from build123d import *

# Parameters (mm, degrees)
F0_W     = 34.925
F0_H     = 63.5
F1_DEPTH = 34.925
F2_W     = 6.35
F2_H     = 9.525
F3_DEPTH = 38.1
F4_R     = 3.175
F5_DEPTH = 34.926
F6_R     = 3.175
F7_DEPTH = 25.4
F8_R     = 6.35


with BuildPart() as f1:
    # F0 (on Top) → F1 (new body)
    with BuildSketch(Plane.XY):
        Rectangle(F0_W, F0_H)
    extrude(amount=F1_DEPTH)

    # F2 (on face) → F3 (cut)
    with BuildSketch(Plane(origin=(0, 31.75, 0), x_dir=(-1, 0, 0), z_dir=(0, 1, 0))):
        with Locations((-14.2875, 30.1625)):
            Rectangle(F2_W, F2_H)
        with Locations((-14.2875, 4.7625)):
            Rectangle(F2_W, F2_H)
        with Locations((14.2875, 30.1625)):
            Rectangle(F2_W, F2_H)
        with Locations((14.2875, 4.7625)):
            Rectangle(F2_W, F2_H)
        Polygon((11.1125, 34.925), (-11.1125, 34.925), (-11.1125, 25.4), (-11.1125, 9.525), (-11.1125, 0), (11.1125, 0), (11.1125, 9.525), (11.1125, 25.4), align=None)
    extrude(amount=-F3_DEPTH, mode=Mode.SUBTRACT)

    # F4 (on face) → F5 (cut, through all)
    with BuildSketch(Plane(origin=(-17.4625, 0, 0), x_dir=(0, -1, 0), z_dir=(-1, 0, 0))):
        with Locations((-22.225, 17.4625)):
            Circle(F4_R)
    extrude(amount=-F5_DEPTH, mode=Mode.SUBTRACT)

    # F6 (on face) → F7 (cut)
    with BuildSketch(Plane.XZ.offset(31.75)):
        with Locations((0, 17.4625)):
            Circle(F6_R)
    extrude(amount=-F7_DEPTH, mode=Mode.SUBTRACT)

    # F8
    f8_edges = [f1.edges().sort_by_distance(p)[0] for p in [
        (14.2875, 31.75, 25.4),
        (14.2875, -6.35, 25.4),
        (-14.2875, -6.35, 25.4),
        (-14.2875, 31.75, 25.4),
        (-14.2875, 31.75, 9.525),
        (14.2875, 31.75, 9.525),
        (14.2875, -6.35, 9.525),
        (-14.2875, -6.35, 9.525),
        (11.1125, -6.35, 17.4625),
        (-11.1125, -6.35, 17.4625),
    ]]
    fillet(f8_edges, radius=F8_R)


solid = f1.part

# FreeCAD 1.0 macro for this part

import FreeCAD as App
import Part
import Sketcher
from FreeCAD import Vector
Q = App.Units.Quantity


def edges_at(feature, points):
    """Names of the edges that pass closest to the given points."""
    edges = feature.Shape.Edges
    near = lambda p: min(range(len(edges)), key=lambda i: edges[i].distToShape(Part.Vertex(*p))[0])
    return sorted({f"Edge{near(p) + 1}" for p in points})


def add_polygon(sketch, points):
    """Adds a closed chain of lines whose ends are joined by coincident constraints."""
    first, n = sketch.GeometryCount, len(points)
    for a, b in zip(points, points[1:] + points[:1]):
        sketch.addGeometry(Part.LineSegment(App.Vector(*a, 0), App.Vector(*b, 0)), False)
    for i in range(n):
        sketch.addConstraint(Sketcher.Constraint("Coincident", first + i, 2, first + (i + 1) % n, 1))

doc = App.newDocument("Part")
params = doc.addObject("Spreadsheet::Sheet", "Params")
for row, (alias, value) in enumerate([
    ("sketch1_height", "2.5 in"),
    ("sketch1_width", "1.375 in"),
    ("pad1_length", "1.375 in"),
    ("sketch2_width", "0.25 in"),
    ("sketch2_width2", "1.375 in"),
    ("sketch2_height", "0.375 in"),
    ("pocket1_length", "1.5 in"),
    ("sketch3_diameter", "0.25 in"),
    ("sketch4_diameter", "0.25 in"),
    ("pocket3_length", "1 in"),
    ("fillet_radius", "0.25 in"),
], start=1):
    params.set(f"A{row}", alias)
    params.set(f"B{row}", "=" + value)
    params.setAlias(f"B{row}", alias)

body = doc.addObject("PartDesign::Body", "Body")

# Sketch on XY plane
sketch1 = body.newObject("Sketcher::SketchObject", "Sketch")
sketch1.AttachmentSupport = (doc.getObject("XY_Plane"), [""])
sketch1.MapMode = "FlatFace"
add_polygon(sketch1, [(-17, 32), (-17, -32), (17, -32), (17, 32)])  # lines 0-3
sketch1.addConstraint([
    Sketcher.Constraint("Vertical", 0),
    Sketcher.Constraint("Horizontal", 1),
    Sketcher.Constraint("Vertical", 2),
    Sketcher.Constraint("Horizontal", 3),
    Sketcher.Constraint("Symmetric", 0, 2, 2, 2, -1, 1),
    Sketcher.Constraint("DistanceY", 0, 2, 0, 1, Q("2.5 in")),
    Sketcher.Constraint("DistanceX", 1, 1, 1, 2, Q("1.375 in")),
])
sketch1.setExpression("Constraints[9]", "Params.sketch1_height")
sketch1.setExpression("Constraints[10]", "Params.sketch1_width")
pad1 = body.newObject("PartDesign::Pad", "Pad")
pad1.Profile = sketch1
pad1.setExpression("Length", "Params.pad1_length")

# Sketch on XZ plane
sketch2 = body.newObject("Sketcher::SketchObject", "Sketch001")
sketch2.AttachmentSupport = (doc.getObject("XZ_Plane"), [""])
sketch2.MapMode = "FlatFace"
sketch2.AttachmentOffset = App.Placement(Vector(0, 0, -1.25 * 25.4), App.Rotation())
add_polygon(sketch2, [(17, 35), (17, 25), (11, 25), (11, 10), (17, 10), (17, 0), (-17, 0), (-17, 10), (-11, 10), (-11, 25), (-17, 25), (-17, 35)])  # lines 0-11
sketch2.addConstraint([
    Sketcher.Constraint("Vertical", 0),
    Sketcher.Constraint("Horizontal", 1),
    Sketcher.Constraint("Vertical", 2),
    Sketcher.Constraint("Horizontal", 3),
    Sketcher.Constraint("Vertical", 4),
    Sketcher.Constraint("Horizontal", 5),
    Sketcher.Constraint("Vertical", 6),
    Sketcher.Constraint("Horizontal", 7),
    Sketcher.Constraint("Vertical", 8),
    Sketcher.Constraint("Horizontal", 9),
    Sketcher.Constraint("Vertical", 10),
    Sketcher.Constraint("Horizontal", 11),
    Sketcher.Constraint("Symmetric", 4, 2, 5, 2, -1, 1),
    Sketcher.Constraint("Symmetric", 2, 2, 7, 2, -2),
    Sketcher.Constraint("Symmetric", 0, 2, 9, 2, -2),
    Sketcher.Constraint("Vertical", 0, 2, 3, 2),
    Sketcher.Constraint("Equal", 0, 4),
    Sketcher.Constraint("DistanceY", -1, 1, 0, 2, Q("1 in")),
    Sketcher.Constraint("DistanceX", 1, 2, 1, 1, Q("0.25 in")),
    Sketcher.Constraint("DistanceX", 5, 2, 5, 1, Q("1.375 in")),
    Sketcher.Constraint("DistanceY", 0, 2, 0, 1, Q("0.375 in")),
])
sketch2.setExpression("Constraints[30]", "Params.sketch2_width")
sketch2.setExpression("Constraints[31]", "Params.sketch2_width2")
sketch2.setExpression("Constraints[32]", "Params.sketch2_height")
pocket1 = body.newObject("PartDesign::Pocket", "Pocket")
pocket1.Profile = sketch2
pocket1.setExpression("Length", "Params.pocket1_length")
pocket1.Reversed = True

# Sketch on YZ plane
sketch3 = body.newObject("Sketcher::SketchObject", "Sketch002")
sketch3.AttachmentSupport = (doc.getObject("YZ_Plane"), [""])
sketch3.MapMode = "FlatFace"
sketch3.AttachmentOffset = App.Placement(Vector(0, 0, -0.6875 * 25.4), App.Rotation())
sketch3.addGeometry(Part.Circle(Vector(22.2, 17.5, 0), Vector(0, 0, 1), 3.2), False)
sketch3.addConstraint([
    Sketcher.Constraint("Diameter", 0, Q("0.25 in")),
    Sketcher.Constraint("DistanceX", -1, 1, 0, 3, Q("0.875 in")),
    Sketcher.Constraint("DistanceY", -1, 1, 0, 3, Q("0.6875 in")),
])
sketch3.setExpression("Constraints[0]", "Params.sketch3_diameter")
pocket2 = body.newObject("PartDesign::Pocket", "Pocket001")
pocket2.Profile = sketch3
pocket2.Type = "ThroughAll"
pocket2.Reversed = True

# Sketch on XZ plane
sketch4 = body.newObject("Sketcher::SketchObject", "Sketch003")
sketch4.AttachmentSupport = (doc.getObject("XZ_Plane"), [""])
sketch4.MapMode = "FlatFace"
sketch4.AttachmentOffset = App.Placement(Vector(0, 0, 1.25 * 25.4), App.Rotation())
sketch4.addGeometry(Part.Circle(Vector(0, 17.5, 0), Vector(0, 0, 1), 3.2), False)
sketch4.addConstraint([
    Sketcher.Constraint("PointOnObject", 0, 3, -2),
    Sketcher.Constraint("Diameter", 0, Q("0.25 in")),
    Sketcher.Constraint("DistanceY", -1, 1, 0, 3, Q("0.6875 in")),
])
sketch4.setExpression("Constraints[1]", "Params.sketch4_diameter")
pocket3 = body.newObject("PartDesign::Pocket", "Pocket002")
pocket3.Profile = sketch4
pocket3.setExpression("Length", "Params.pocket3_length")
doc.recompute()

fillet = body.newObject("PartDesign::Fillet", "Fillet")
fillet.Base = (pocket3, edges_at(pocket3, [
    (14.287, 31.75, 25.4),
    (14.287, -6.35, 25.4),
    (-14.287, -6.35, 25.4),
    (-14.287, 31.75, 25.4),
    (-14.287, 31.75, 9.525),
    (14.287, 31.75, 9.525),
    (14.287, -6.35, 9.525),
    (-14.287, -6.35, 9.525),
    (11.113, -6.35, 17.462),
    (-11.113, -6.35, 17.462),
]))
fillet.setExpression("Radius", "Params.fillet_radius")

doc.recompute()
